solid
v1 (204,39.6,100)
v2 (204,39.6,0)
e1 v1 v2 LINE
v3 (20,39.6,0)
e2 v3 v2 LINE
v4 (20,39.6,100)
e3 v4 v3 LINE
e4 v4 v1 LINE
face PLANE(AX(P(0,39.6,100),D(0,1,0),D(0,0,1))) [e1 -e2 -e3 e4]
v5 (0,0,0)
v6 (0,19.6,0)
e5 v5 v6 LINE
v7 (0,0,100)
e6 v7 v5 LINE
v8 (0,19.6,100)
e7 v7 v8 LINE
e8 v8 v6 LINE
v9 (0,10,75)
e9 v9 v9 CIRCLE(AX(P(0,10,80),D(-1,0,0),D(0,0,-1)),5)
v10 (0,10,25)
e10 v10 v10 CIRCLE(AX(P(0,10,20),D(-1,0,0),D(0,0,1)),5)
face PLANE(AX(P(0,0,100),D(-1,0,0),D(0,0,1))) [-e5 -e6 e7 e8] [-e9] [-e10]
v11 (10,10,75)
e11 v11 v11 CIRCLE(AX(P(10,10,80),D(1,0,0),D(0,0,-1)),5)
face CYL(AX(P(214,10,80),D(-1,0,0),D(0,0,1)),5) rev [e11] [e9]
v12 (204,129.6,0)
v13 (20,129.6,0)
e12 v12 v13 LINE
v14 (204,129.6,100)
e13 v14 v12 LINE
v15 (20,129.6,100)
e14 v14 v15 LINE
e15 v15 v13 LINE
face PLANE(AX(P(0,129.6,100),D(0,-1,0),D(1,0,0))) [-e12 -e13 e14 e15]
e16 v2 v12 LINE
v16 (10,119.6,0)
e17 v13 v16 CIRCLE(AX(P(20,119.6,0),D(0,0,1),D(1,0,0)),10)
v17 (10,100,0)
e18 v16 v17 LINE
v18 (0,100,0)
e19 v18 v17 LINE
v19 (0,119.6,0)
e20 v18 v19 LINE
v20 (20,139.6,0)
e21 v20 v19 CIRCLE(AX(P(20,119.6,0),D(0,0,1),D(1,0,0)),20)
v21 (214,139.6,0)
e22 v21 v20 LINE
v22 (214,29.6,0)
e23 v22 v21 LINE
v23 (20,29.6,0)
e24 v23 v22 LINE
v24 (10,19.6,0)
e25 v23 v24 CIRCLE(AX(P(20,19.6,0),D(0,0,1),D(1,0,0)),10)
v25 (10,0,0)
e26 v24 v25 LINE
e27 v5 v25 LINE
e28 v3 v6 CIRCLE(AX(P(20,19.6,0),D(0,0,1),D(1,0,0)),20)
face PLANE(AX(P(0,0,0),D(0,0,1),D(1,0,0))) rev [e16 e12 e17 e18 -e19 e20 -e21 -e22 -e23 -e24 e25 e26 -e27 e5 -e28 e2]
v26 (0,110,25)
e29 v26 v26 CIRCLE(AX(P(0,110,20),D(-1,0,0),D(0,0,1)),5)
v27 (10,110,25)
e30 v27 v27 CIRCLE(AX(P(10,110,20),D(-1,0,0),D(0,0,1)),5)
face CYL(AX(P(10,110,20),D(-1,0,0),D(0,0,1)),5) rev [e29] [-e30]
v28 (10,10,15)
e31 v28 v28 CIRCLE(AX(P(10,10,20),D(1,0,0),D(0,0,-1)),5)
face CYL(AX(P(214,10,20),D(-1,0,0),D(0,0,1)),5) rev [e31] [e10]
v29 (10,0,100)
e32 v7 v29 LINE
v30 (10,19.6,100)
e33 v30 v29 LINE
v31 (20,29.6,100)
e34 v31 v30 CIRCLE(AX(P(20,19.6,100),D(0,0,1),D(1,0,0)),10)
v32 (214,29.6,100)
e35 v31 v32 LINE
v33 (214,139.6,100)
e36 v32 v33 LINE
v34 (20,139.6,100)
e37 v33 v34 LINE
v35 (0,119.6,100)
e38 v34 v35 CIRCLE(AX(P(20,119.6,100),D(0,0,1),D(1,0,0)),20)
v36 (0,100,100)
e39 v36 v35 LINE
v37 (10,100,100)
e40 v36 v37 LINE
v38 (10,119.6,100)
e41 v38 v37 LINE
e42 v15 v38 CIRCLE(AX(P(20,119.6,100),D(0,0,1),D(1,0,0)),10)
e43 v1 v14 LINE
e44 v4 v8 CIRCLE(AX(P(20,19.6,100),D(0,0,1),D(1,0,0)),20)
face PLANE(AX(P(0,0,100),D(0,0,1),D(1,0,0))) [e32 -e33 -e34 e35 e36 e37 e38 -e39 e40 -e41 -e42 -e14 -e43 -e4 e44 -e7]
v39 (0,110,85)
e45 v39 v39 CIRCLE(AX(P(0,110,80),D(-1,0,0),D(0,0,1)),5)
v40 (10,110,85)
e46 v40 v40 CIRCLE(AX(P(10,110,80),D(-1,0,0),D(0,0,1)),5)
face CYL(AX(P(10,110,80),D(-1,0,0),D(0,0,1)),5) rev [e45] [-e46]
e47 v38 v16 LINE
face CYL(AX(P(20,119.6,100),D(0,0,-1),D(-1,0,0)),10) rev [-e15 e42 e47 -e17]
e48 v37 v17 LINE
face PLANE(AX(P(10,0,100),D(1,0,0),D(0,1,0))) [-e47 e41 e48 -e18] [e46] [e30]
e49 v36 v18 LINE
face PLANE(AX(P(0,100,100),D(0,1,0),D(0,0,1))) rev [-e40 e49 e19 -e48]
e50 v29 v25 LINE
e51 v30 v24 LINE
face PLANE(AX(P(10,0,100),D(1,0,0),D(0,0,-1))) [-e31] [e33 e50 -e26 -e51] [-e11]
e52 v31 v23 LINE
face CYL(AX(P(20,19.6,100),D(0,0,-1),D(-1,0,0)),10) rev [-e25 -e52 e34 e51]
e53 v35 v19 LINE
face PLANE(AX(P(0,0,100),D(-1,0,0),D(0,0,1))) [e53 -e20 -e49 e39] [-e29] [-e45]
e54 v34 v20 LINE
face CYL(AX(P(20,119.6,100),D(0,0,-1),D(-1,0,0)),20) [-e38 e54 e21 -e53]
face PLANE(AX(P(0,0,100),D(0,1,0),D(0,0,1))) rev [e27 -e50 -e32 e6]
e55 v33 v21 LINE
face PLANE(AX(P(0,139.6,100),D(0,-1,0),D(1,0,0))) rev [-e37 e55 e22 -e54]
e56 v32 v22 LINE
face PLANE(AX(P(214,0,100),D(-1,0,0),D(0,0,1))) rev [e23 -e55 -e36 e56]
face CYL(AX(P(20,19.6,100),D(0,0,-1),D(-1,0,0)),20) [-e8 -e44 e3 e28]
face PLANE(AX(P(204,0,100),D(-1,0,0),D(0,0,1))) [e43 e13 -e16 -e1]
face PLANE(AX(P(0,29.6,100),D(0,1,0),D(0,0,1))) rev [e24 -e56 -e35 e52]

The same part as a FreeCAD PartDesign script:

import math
import FreeCAD as App
import Part
import Sketcher

V = App.Vector
Q = App.Units.Quantity

doc = App.newDocument("Part")
body = doc.addObject("PartDesign::Body", "Body")

# Sketch on XY plane
sketch1 = body.newObject("Sketcher::SketchObject", "Sketch")
sketch1.AttachmentSupport = (doc.getObject("XY_Plane"), [""])
sketch1.MapMode = "FlatFace"
sketch1.addGeometry([
    Part.LineSegment(V(0, 20, 0), V(0, 0, 0)),  # 0
    Part.LineSegment(V(0, 0, 0), V(10, 0, 0)),  # 1
    Part.LineSegment(V(10, 0, 0), V(10, 20, 0)),  # 2
    Part.ArcOfCircle(Part.Circle(V(20, 20, 0), V(0, 0, 1), 10), math.radians(90), math.radians(180)),  # 3
    Part.LineSegment(V(20, 30, 0), V(214, 30, 0)),  # 4
    Part.LineSegment(V(214, 30, 0), V(214, 140, 0)),  # 5
    Part.LineSegment(V(214, 140, 0), V(20, 140, 0)),  # 6
    Part.ArcOfCircle(Part.Circle(V(20, 120, 0), V(0, 0, 1), 20), math.radians(90), math.radians(180)),  # 7
    Part.LineSegment(V(0, 120, 0), V(0, 100, 0)),  # 8
    Part.LineSegment(V(0, 100, 0), V(10, 100, 0)),  # 9
    Part.LineSegment(V(10, 100, 0), V(10, 120, 0)),  # 10
    Part.ArcOfCircle(Part.Circle(V(20, 120, 0), V(0, 0, 1), 10), math.radians(90), math.radians(180)),  # 11
    Part.LineSegment(V(20, 130, 0), V(204, 130, 0)),  # 12
    Part.LineSegment(V(204, 130, 0), V(204, 40, 0)),  # 13
    Part.LineSegment(V(204, 40, 0), V(20, 40, 0)),  # 14
    Part.ArcOfCircle(Part.Circle(V(20, 20, 0), V(0, 0, 1), 20), math.radians(90), math.radians(180)),  # 15
], False)
sketch1.addConstraint([
    Sketcher.Constraint("Coincident", 0, 2, 1, 1),
    Sketcher.Constraint("Coincident", 1, 2, 2, 1),
    Sketcher.Constraint("Tangent", 2, 2, 3, 2),
    Sketcher.Constraint("Tangent", 3, 1, 4, 1),
    Sketcher.Constraint("Coincident", 4, 2, 5, 1),
    Sketcher.Constraint("Coincident", 5, 2, 6, 1),
    Sketcher.Constraint("Tangent", 6, 2, 7, 1),
    Sketcher.Constraint("Tangent", 7, 2, 8, 1),
    Sketcher.Constraint("Coincident", 8, 2, 9, 1),
    Sketcher.Constraint("Coincident", 9, 2, 10, 1),
    Sketcher.Constraint("Tangent", 10, 2, 11, 2),
    Sketcher.Constraint("Tangent", 11, 1, 12, 1),
    Sketcher.Constraint("Coincident", 12, 2, 13, 1),
    Sketcher.Constraint("Coincident", 13, 2, 14, 1),
    Sketcher.Constraint("Tangent", 14, 2, 15, 1),
    Sketcher.Constraint("Tangent", 15, 2, 0, 1),
    Sketcher.Constraint("Vertical", 0),
    Sketcher.Constraint("Horizontal", 1),
    Sketcher.Constraint("Vertical", 2),
    Sketcher.Constraint("Horizontal", 4),
    Sketcher.Constraint("Vertical", 5),
    Sketcher.Constraint("Horizontal", 6),
    Sketcher.Constraint("Vertical", 8),
    Sketcher.Constraint("Horizontal", 9),
    Sketcher.Constraint("Vertical", 10),
    Sketcher.Constraint("Horizontal", 12),
    Sketcher.Constraint("Vertical", 13),
    Sketcher.Constraint("Horizontal", 14),
    Sketcher.Constraint("Coincident", 0, 2, -1, 1),
    Sketcher.Constraint("Coincident", 11, 3, 7, 3),
    Sketcher.Constraint("Coincident", 15, 3, 3, 3),
    Sketcher.Constraint("Equal", 3, 11),
    Sketcher.Constraint("Equal", 7, 15),
    Sketcher.Constraint("PointOnObject", 7, 2, -2),
    Sketcher.Constraint("Equal", 2, 8),
    Sketcher.Constraint("Radius", 3, Q("10 mm")),
    Sketcher.Constraint("Radius", 7, Q("20 mm")),
    Sketcher.Constraint("DistanceX", 4, 1, 4, 2, Q("194 mm")),
    Sketcher.Constraint("DistanceX", 12, 1, 12, 2, Q("184 mm")),
    Sketcher.Constraint("DistanceY", 5, 1, 5, 2, Q("110 mm")),
    Sketcher.Constraint("DistanceY", 0, 2, 0, 1, Q("19.6 mm")),
])
pad1 = body.newObject("PartDesign::Pad", "Pad")
pad1.Profile = sketch1
pad1.Length = 100

# Sketch on YZ plane
sketch2 = body.newObject("Sketcher::SketchObject", "Sketch001")
sketch2.AttachmentSupport = (doc.getObject("YZ_Plane"), [""])
sketch2.MapMode = "FlatFace"
sketch2.addGeometry([
    Part.Circle(V(10, 20, 0), V(0, 0, 1), 5),
    Part.Circle(V(10, 80, 0), V(0, 0, 1), 5),
], False)
sketch2.addConstraint([
    Sketcher.Constraint("Equal", 0, 1),
    Sketcher.Constraint("Vertical", 0, 3, 1, 3),
    Sketcher.Constraint("Diameter", 0, Q("10 mm")),
    Sketcher.Constraint("DistanceX", -1, 1, 0, 3, Q("10 mm")),
    Sketcher.Constraint("DistanceY", -1, 1, 0, 3, Q("20 mm")),
    Sketcher.Constraint("DistanceY", -1, 1, 1, 3, Q("80 mm")),
])
pocket1 = body.newObject("PartDesign::Pocket", "Pocket")
pocket1.Profile = sketch2
pocket1.Type = "ThroughAll"
pocket1.Reversed = True

# Sketch on YZ plane
sketch3 = body.newObject("Sketcher::SketchObject", "Sketch002")
sketch3.AttachmentSupport = (doc.getObject("YZ_Plane"), [""])
sketch3.MapMode = "FlatFace"
sketch3.addGeometry([
    Part.Circle(V(110, 20, 0), V(0, 0, 1), 5),
    Part.Circle(V(110, 80, 0), V(0, 0, 1), 5),
], False)
sketch3.addConstraint([
    Sketcher.Constraint("Equal", 0, 1),
    Sketcher.Constraint("Vertical", 0, 3, 1, 3),
    Sketcher.Constraint("Diameter", 0, Q("10 mm")),
    Sketcher.Constraint("DistanceX", -1, 1, 0, 3, Q("110 mm")),
    Sketcher.Constraint("DistanceY", -1, 1, 0, 3, Q("20 mm")),
    Sketcher.Constraint("DistanceY", -1, 1, 1, 3, Q("80 mm")),
])
pocket2 = body.newObject("PartDesign::Pocket", "Pocket001")
pocket2.Profile = sketch3
pocket2.Length = 10
pocket2.Reversed = True

doc.recompute()
